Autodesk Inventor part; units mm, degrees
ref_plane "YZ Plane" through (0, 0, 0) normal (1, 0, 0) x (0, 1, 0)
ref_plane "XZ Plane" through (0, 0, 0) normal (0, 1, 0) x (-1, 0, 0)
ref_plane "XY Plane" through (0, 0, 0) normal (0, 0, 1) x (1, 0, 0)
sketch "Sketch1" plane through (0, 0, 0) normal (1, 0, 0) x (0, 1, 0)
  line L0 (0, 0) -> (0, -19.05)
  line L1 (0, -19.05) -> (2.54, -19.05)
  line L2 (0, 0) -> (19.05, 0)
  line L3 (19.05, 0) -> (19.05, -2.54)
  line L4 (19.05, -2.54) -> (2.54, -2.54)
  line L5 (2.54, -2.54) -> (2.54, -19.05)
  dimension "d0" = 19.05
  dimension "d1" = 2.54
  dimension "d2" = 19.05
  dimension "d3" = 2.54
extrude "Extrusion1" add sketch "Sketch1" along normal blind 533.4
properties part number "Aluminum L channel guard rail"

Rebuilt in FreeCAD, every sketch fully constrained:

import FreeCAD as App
import Part
import Sketcher
Q = App.Units.Quantity


def add_polygon(sketch, points):
    """Adds a closed chain of lines whose ends are joined by coincident constraints."""
    first, n = sketch.GeometryCount, len(points)
    for a, b in zip(points, points[1:] + points[:1]):
        sketch.addGeometry(Part.LineSegment(App.Vector(*a, 0), App.Vector(*b, 0)), False)
    for i in range(n):
        sketch.addConstraint(Sketcher.Constraint("Coincident", first + i, 2, first + (i + 1) % n, 1))

doc = App.newDocument("Part")
body = doc.addObject("PartDesign::Body", "Body")

# Sketch on YZ plane
sketch1 = body.newObject("Sketcher::SketchObject", "Sketch")
sketch1.AttachmentSupport = (doc.getObject("YZ_Plane"), [""])
sketch1.MapMode = "FlatFace"
add_polygon(sketch1, [(19.1, 0), (0, 0), (0, -19.1), (2.5, -19.1), (2.5, -2.5), (19.1, -2.5)])  # lines 0-5
sketch1.addConstraint(Sketcher.Constraint("Horizontal", 0))
sketch1.addConstraint(Sketcher.Constraint("Vertical", 1))
sketch1.addConstraint(Sketcher.Constraint("Horizontal", 2))
sketch1.addConstraint(Sketcher.Constraint("Vertical", 3))
sketch1.addConstraint(Sketcher.Constraint("Horizontal", 4))
sketch1.addConstraint(Sketcher.Constraint("Vertical", 5))
sketch1.addConstraint(Sketcher.Constraint("Coincident", 0, 2, -1, 1))
sketch1.addConstraint(Sketcher.Constraint("Equal", 0, 1))
sketch1.addConstraint(Sketcher.Constraint("Equal", 4, 3))
sketch1.addConstraint(Sketcher.Constraint("DistanceX", 2, 1, 2, 2, Q("0.1 in")))
sketch1.addConstraint(Sketcher.Constraint("DistanceX", 0, 2, 0, 1, Q("0.75 in")))
pad1 = body.newObject("PartDesign::Pad", "Pad")
pad1.Profile = sketch1
pad1.Length = Q("21 in")

doc.recompute()
